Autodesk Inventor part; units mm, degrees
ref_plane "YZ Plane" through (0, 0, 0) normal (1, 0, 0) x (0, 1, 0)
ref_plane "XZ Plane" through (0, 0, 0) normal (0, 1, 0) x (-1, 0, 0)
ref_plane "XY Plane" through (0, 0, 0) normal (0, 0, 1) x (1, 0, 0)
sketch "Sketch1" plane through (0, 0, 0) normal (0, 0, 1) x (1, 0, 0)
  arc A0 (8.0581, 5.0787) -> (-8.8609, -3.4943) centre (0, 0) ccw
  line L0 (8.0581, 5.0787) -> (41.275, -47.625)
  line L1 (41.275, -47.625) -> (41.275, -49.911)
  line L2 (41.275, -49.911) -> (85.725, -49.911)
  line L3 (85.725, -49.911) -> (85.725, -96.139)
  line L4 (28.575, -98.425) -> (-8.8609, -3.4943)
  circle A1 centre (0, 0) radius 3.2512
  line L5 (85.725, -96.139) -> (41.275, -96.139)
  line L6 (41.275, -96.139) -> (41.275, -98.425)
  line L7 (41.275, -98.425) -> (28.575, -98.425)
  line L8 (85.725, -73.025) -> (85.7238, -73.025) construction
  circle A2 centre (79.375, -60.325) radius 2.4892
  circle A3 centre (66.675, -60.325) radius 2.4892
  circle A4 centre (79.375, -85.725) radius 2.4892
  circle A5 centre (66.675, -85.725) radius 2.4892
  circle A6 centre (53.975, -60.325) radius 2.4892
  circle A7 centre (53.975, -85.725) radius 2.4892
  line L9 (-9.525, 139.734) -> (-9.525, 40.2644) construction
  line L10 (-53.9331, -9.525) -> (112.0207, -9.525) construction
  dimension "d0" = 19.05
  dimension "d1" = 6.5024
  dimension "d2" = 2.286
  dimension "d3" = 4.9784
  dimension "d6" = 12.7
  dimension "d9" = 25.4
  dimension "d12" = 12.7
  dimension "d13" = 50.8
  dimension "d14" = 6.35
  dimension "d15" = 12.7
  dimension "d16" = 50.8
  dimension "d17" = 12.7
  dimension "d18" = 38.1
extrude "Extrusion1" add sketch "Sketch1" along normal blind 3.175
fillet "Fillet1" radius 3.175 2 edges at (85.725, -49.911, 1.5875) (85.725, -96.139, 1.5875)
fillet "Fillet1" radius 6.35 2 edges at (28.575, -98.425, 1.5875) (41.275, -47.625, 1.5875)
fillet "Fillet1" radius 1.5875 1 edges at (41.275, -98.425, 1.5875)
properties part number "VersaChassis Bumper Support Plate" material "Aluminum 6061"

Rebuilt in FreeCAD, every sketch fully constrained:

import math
import FreeCAD as App
import Part
import Sketcher
from FreeCAD import Vector
Q = App.Units.Quantity


def edges_at(feature, points):
    """Names of the edges that pass closest to the given points."""
    edges = feature.Shape.Edges
    near = lambda p: min(range(len(edges)), key=lambda i: edges[i].distToShape(Part.Vertex(*p))[0])
    return sorted({f"Edge{near(p) + 1}" for p in points})

doc = App.newDocument("Part")
params = doc.addObject("Spreadsheet::Sheet", "Params")
for row, (alias, value) in enumerate([
    ("sketch1_diameter", "0.196 in"),
    ("sketch1_diameter2", "0.256 in"),
    ("sketch1_width", "0.5 in"),
    ("sketch1_radius", "0.375 in"),
    ("sketch1_height", "0.09 in"),
    ("pad1_length", "0.125 in"),
    ("fillet_radius", "0.125 in"),
    ("fillet2_radius", "0.25 in"),
    ("fillet3_radius", "0.0625 in"),
], start=1):
    params.set(f"A{row}", alias)
    params.set(f"B{row}", "=" + value)
    params.setAlias(f"B{row}", alias)

body = doc.addObject("PartDesign::Body", "Body")

# Sketch on XY plane
sketch1 = body.newObject("Sketcher::SketchObject", "Sketch")
sketch1.AttachmentSupport = (doc.getObject("XY_Plane"), [""])
sketch1.MapMode = "FlatFace"
sketch1.addGeometry([
    Part.LineSegment(Vector(41.3, -47.6, 0), Vector(8.1, 5.1, 0)),  # 0
    Part.ArcOfCircle(Part.Circle(Vector(0, 0, 0), Vector(0, 0, 1), 9.5), math.radians(32), math.radians(202)),  # 1
    Part.LineSegment(Vector(-8.9, -3.5, 0), Vector(28.6, -98.4, 0)),  # 2
    Part.LineSegment(Vector(28.6, -98.4, 0), Vector(41.3, -98.4, 0)),  # 3
    Part.LineSegment(Vector(41.3, -98.4, 0), Vector(41.3, -96.1, 0)),  # 4
    Part.LineSegment(Vector(41.3, -96.1, 0), Vector(85.7, -96.1, 0)),  # 5
    Part.LineSegment(Vector(85.7, -96.1, 0), Vector(85.7, -49.9, 0)),  # 6
    Part.LineSegment(Vector(85.7, -49.9, 0), Vector(41.3, -49.9, 0)),  # 7
    Part.LineSegment(Vector(41.3, -49.9, 0), Vector(41.3, -47.6, 0)),  # 8
    Part.Circle(Vector(54, -85.7, 0), Vector(0, 0, 1), 2.5),  # 9
    Part.Circle(Vector(66.7, -85.7, 0), Vector(0, 0, 1), 2.5),  # 10
    Part.Circle(Vector(79.4, -85.7, 0), Vector(0, 0, 1), 2.5),  # 11
    Part.Circle(Vector(54, -60.3, 0), Vector(0, 0, 1), 2.5),  # 12
    Part.Circle(Vector(66.7, -60.3, 0), Vector(0, 0, 1), 2.5),  # 13
    Part.Circle(Vector(79.4, -60.3, 0), Vector(0, 0, 1), 2.5),  # 14
    Part.Circle(Vector(0, 0, 0), Vector(0, 0, 1), 3.3),  # 15
], False)
sketch1.addConstraint([
    Sketcher.Constraint("Tangent", 0, 2, 1, 1),
    Sketcher.Constraint("Tangent", 1, 2, 2, 1),
    Sketcher.Constraint("Coincident", 2, 2, 3, 1),
    Sketcher.Constraint("Coincident", 3, 2, 4, 1),
    Sketcher.Constraint("Coincident", 4, 2, 5, 1),
    Sketcher.Constraint("Coincident", 5, 2, 6, 1),
    Sketcher.Constraint("Coincident", 6, 2, 7, 1),
    Sketcher.Constraint("Coincident", 7, 2, 8, 1),
    Sketcher.Constraint("Coincident", 8, 2, 0, 1),
    Sketcher.Constraint("Horizontal", 3),
    Sketcher.Constraint("Vertical", 4),
    Sketcher.Constraint("Horizontal", 5),
    Sketcher.Constraint("Vertical", 6),
    Sketcher.Constraint("Horizontal", 7),
    Sketcher.Constraint("Vertical", 8),
    Sketcher.Constraint("Coincident", 1, 3, -1, 1),
    Sketcher.Constraint("Coincident", 15, 3, -1, 1),
    Sketcher.Constraint("Equal", 9, 10),
    Sketcher.Constraint("Equal", 10, 11),
    Sketcher.Constraint("Equal", 11, 12),
    Sketcher.Constraint("Equal", 12, 13),
    Sketcher.Constraint("Equal", 13, 14),
    Sketcher.Constraint("Horizontal", 9, 3, 10, 3),
    Sketcher.Constraint("Horizontal", 10, 3, 11, 3),
    Sketcher.Constraint("Horizontal", 12, 3, 13, 3),
    Sketcher.Constraint("Horizontal", 13, 3, 14, 3),
    Sketcher.Constraint("Vertical", 9, 3, 12, 3),
    Sketcher.Constraint("Vertical", 10, 3, 13, 3),
    Sketcher.Constraint("Vertical", 11, 3, 14, 3),
    Sketcher.Constraint("Vertical", 4, 2, 7, 2),
    Sketcher.Constraint("Equal", 4, 8),
    Sketcher.Constraint("Diameter", 9, Q("0.196 in")),
    Sketcher.Constraint("Diameter", 15, Q("0.256 in")),
    Sketcher.Constraint("DistanceX", 3, 1, 3, 2, Q("0.5 in")),
    Sketcher.Constraint("Radius", 1, Q("0.375 in")),
    Sketcher.Constraint("DistanceX", 9, 3, 11, 3, Q("1 in")),
    Sketcher.Constraint("DistanceY", 9, 3, 12, 3, Q("1 in")),
    Sketcher.Constraint("DistanceX", 2, 2, 9, 3, Q("1 in")),
    Sketcher.Constraint("DistanceX", 3, 2, 10, 3, Q("1 in")),
    Sketcher.Constraint("DistanceY", 4, 1, 4, 2, Q("0.09 in")),
    Sketcher.Constraint("DistanceY", 2, 2, 9, 3, Q("0.5 in")),
    Sketcher.Constraint("DistanceY", 12, 3, 8, 2, Q("0.5 in")),
    Sketcher.Constraint("DistanceX", 11, 3, 5, 2, Q("0.25 in")),
    Sketcher.Constraint("DistanceX", -1, 1, 9, 3, Q("2.125 in")),
    Sketcher.Constraint("DistanceY", 9, 3, -1, 1, Q("3.375 in")),
])
sketch1.setExpression("Constraints[31]", "Params.sketch1_diameter")
sketch1.setExpression("Constraints[32]", "Params.sketch1_diameter2")
sketch1.setExpression("Constraints[33]", "Params.sketch1_width")
sketch1.setExpression("Constraints[34]", "Params.sketch1_radius")
sketch1.setExpression("Constraints[39]", "Params.sketch1_height")
pad1 = body.newObject("PartDesign::Pad", "Pad")
pad1.Profile = sketch1
pad1.setExpression("Length", "Params.pad1_length")
doc.recompute()

fillet = body.newObject("PartDesign::Fillet", "Fillet")
fillet.Base = (pad1, edges_at(pad1, [(85.725, -49.911, 1.587), (85.725, -96.139, 1.587)]))
fillet.setExpression("Radius", "Params.fillet_radius")
doc.recompute()

fillet2 = body.newObject("PartDesign::Fillet", "Fillet001")
fillet2.Base = (fillet, edges_at(fillet, [(28.575, -98.425, 1.587), (41.275, -47.625, 1.587)]))
fillet2.setExpression("Radius", "Params.fillet2_radius")
doc.recompute()

fillet3 = body.newObject("PartDesign::Fillet", "Fillet002")
fillet3.Base = (fillet2, edges_at(fillet2, [(41.275, -98.425, 1.587)]))
fillet3.setExpression("Radius", "Params.fillet3_radius")

doc.recompute()
